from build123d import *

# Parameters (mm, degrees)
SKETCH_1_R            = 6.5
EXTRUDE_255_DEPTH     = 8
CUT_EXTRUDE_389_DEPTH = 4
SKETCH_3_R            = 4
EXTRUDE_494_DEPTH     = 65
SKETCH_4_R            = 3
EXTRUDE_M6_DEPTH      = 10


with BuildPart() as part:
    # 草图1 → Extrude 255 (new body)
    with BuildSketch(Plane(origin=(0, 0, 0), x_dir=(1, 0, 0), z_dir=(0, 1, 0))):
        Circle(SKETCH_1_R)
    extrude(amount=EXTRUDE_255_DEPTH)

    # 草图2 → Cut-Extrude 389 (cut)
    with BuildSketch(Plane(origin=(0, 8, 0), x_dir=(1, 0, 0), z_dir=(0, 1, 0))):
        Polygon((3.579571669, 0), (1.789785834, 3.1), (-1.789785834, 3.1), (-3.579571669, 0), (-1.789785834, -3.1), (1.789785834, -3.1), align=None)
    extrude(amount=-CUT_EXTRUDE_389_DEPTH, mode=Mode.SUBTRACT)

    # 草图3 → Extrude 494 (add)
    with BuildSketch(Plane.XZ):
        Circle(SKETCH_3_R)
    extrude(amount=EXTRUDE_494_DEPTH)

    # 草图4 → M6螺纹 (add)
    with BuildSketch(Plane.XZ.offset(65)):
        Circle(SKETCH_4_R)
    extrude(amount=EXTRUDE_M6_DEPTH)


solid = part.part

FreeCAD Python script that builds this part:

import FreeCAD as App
import Part
import Sketcher
from FreeCAD import Vector
Q = App.Units.Quantity

doc = App.newDocument("Part")
body = doc.addObject("PartDesign::Body", "Body")

# Sketch on XZ plane
sketch1 = doc.addObject("Sketcher::SketchObject", "Sketch")
body.addObject(sketch1)
sketch1.AttachmentSupport = (doc.XZ_Plane, [""])
sketch1.MapMode = "FlatFace"
sketch1.addGeometry(Part.Circle(Vector(0, 0, 0), Vector(0, 0, 1), 6.5), False)
sketch1.addConstraint([
    Sketcher.Constraint("Coincident", 0, 3, -1, 1),
    Sketcher.Constraint("Diameter", 0, 13.0),
])
pad1 = doc.addObject("PartDesign::Pad", "Pad")
body.addObject(pad1)
pad1.Profile = sketch1
pad1.Length = 8
pad1.Reversed = True

# Sketch on XZ plane
sketch2 = doc.addObject("Sketcher::SketchObject", "Sketch001")
body.addObject(sketch2)
sketch2.AttachmentSupport = (doc.XZ_Plane, [""])
sketch2.MapMode = "FlatFace"
sketch2.AttachmentOffset = App.Placement(Vector(0, 0, -8), App.Rotation())
sketch2.addGeometry([
    Part.LineSegment(Vector(3.579572, 0, 0), Vector(1.789786, -3.1, 0)),  # 0
    Part.LineSegment(Vector(1.789786, -3.1, 0), Vector(-1.789786, -3.1, 0)),  # 1
    Part.LineSegment(Vector(-1.789786, -3.1, 0), Vector(-3.579572, 0, 0)),  # 2
    Part.LineSegment(Vector(-3.579572, 0, 0), Vector(-1.789786, 3.1, 0)),  # 3
    Part.LineSegment(Vector(-1.789786, 3.1, 0), Vector(1.789786, 3.1, 0)),  # 4
    Part.LineSegment(Vector(1.789786, 3.1, 0), Vector(3.579572, 0, 0)),  # 5
], False)
sketch2.addConstraint([
    Sketcher.Constraint("Coincident", 0, 2, 1, 1),
    Sketcher.Constraint("Coincident", 1, 2, 2, 1),
    Sketcher.Constraint("Coincident", 2, 2, 3, 1),
    Sketcher.Constraint("Coincident", 3, 2, 4, 1),
    Sketcher.Constraint("Coincident", 4, 2, 5, 1),
    Sketcher.Constraint("Coincident", 5, 2, 0, 1),
    Sketcher.Constraint("Horizontal", 1),
    Sketcher.Constraint("Horizontal", 4),
    Sketcher.Constraint("Symmetric", 0, 2, 3, 2, -1, 1),
    Sketcher.Constraint("Symmetric", 2, 2, 5, 2, -1, 1),
    Sketcher.Constraint("PointOnObject", 2, 2, -1),
    Sketcher.Constraint("Parallel", 2, 5),
    Sketcher.Constraint("Vertical", 1, 2, 3, 2),
    Sketcher.Constraint("Angle", 0, Q("-120 deg")),
    Sketcher.Constraint("DistanceY", 0, 2, -1, 1, 3.1),
    Sketcher.Constraint("DistanceX", 1, 2, 1, 1, 3.579572),
])
pocket1 = doc.addObject("PartDesign::Pocket", "Pocket")
body.addObject(pocket1)
pocket1.Profile = sketch2
pocket1.Length = 4
pocket1.Reversed = True

# Sketch on XZ plane
sketch3 = doc.addObject("Sketcher::SketchObject", "Sketch002")
body.addObject(sketch3)
sketch3.AttachmentSupport = (doc.XZ_Plane, [""])
sketch3.MapMode = "FlatFace"
sketch3.addGeometry(Part.Circle(Vector(0, 0, 0), Vector(0, 0, 1), 4), False)
sketch3.addConstraint([
    Sketcher.Constraint("Coincident", 0, 3, -1, 1),
    Sketcher.Constraint("Diameter", 0, 8.0),
])
pad2 = doc.addObject("PartDesign::Pad", "Pad001")
body.addObject(pad2)
pad2.Profile = sketch3
pad2.Length = 65

# Sketch on XZ plane
sketch4 = doc.addObject("Sketcher::SketchObject", "Sketch003")
body.addObject(sketch4)
sketch4.AttachmentSupport = (doc.XZ_Plane, [""])
sketch4.MapMode = "FlatFace"
sketch4.AttachmentOffset = App.Placement(Vector(0, 0, 65), App.Rotation())
sketch4.addGeometry(Part.Circle(Vector(0, 0, 0), Vector(0, 0, 1), 3), False)
sketch4.addConstraint([
    Sketcher.Constraint("Coincident", 0, 3, -1, 1),
    Sketcher.Constraint("Diameter", 0, 6.0),
])
pad3 = doc.addObject("PartDesign::Pad", "Pad002")
body.addObject(pad3)
pad3.Profile = sketch4
pad3.Length = 10

doc.recompute()
